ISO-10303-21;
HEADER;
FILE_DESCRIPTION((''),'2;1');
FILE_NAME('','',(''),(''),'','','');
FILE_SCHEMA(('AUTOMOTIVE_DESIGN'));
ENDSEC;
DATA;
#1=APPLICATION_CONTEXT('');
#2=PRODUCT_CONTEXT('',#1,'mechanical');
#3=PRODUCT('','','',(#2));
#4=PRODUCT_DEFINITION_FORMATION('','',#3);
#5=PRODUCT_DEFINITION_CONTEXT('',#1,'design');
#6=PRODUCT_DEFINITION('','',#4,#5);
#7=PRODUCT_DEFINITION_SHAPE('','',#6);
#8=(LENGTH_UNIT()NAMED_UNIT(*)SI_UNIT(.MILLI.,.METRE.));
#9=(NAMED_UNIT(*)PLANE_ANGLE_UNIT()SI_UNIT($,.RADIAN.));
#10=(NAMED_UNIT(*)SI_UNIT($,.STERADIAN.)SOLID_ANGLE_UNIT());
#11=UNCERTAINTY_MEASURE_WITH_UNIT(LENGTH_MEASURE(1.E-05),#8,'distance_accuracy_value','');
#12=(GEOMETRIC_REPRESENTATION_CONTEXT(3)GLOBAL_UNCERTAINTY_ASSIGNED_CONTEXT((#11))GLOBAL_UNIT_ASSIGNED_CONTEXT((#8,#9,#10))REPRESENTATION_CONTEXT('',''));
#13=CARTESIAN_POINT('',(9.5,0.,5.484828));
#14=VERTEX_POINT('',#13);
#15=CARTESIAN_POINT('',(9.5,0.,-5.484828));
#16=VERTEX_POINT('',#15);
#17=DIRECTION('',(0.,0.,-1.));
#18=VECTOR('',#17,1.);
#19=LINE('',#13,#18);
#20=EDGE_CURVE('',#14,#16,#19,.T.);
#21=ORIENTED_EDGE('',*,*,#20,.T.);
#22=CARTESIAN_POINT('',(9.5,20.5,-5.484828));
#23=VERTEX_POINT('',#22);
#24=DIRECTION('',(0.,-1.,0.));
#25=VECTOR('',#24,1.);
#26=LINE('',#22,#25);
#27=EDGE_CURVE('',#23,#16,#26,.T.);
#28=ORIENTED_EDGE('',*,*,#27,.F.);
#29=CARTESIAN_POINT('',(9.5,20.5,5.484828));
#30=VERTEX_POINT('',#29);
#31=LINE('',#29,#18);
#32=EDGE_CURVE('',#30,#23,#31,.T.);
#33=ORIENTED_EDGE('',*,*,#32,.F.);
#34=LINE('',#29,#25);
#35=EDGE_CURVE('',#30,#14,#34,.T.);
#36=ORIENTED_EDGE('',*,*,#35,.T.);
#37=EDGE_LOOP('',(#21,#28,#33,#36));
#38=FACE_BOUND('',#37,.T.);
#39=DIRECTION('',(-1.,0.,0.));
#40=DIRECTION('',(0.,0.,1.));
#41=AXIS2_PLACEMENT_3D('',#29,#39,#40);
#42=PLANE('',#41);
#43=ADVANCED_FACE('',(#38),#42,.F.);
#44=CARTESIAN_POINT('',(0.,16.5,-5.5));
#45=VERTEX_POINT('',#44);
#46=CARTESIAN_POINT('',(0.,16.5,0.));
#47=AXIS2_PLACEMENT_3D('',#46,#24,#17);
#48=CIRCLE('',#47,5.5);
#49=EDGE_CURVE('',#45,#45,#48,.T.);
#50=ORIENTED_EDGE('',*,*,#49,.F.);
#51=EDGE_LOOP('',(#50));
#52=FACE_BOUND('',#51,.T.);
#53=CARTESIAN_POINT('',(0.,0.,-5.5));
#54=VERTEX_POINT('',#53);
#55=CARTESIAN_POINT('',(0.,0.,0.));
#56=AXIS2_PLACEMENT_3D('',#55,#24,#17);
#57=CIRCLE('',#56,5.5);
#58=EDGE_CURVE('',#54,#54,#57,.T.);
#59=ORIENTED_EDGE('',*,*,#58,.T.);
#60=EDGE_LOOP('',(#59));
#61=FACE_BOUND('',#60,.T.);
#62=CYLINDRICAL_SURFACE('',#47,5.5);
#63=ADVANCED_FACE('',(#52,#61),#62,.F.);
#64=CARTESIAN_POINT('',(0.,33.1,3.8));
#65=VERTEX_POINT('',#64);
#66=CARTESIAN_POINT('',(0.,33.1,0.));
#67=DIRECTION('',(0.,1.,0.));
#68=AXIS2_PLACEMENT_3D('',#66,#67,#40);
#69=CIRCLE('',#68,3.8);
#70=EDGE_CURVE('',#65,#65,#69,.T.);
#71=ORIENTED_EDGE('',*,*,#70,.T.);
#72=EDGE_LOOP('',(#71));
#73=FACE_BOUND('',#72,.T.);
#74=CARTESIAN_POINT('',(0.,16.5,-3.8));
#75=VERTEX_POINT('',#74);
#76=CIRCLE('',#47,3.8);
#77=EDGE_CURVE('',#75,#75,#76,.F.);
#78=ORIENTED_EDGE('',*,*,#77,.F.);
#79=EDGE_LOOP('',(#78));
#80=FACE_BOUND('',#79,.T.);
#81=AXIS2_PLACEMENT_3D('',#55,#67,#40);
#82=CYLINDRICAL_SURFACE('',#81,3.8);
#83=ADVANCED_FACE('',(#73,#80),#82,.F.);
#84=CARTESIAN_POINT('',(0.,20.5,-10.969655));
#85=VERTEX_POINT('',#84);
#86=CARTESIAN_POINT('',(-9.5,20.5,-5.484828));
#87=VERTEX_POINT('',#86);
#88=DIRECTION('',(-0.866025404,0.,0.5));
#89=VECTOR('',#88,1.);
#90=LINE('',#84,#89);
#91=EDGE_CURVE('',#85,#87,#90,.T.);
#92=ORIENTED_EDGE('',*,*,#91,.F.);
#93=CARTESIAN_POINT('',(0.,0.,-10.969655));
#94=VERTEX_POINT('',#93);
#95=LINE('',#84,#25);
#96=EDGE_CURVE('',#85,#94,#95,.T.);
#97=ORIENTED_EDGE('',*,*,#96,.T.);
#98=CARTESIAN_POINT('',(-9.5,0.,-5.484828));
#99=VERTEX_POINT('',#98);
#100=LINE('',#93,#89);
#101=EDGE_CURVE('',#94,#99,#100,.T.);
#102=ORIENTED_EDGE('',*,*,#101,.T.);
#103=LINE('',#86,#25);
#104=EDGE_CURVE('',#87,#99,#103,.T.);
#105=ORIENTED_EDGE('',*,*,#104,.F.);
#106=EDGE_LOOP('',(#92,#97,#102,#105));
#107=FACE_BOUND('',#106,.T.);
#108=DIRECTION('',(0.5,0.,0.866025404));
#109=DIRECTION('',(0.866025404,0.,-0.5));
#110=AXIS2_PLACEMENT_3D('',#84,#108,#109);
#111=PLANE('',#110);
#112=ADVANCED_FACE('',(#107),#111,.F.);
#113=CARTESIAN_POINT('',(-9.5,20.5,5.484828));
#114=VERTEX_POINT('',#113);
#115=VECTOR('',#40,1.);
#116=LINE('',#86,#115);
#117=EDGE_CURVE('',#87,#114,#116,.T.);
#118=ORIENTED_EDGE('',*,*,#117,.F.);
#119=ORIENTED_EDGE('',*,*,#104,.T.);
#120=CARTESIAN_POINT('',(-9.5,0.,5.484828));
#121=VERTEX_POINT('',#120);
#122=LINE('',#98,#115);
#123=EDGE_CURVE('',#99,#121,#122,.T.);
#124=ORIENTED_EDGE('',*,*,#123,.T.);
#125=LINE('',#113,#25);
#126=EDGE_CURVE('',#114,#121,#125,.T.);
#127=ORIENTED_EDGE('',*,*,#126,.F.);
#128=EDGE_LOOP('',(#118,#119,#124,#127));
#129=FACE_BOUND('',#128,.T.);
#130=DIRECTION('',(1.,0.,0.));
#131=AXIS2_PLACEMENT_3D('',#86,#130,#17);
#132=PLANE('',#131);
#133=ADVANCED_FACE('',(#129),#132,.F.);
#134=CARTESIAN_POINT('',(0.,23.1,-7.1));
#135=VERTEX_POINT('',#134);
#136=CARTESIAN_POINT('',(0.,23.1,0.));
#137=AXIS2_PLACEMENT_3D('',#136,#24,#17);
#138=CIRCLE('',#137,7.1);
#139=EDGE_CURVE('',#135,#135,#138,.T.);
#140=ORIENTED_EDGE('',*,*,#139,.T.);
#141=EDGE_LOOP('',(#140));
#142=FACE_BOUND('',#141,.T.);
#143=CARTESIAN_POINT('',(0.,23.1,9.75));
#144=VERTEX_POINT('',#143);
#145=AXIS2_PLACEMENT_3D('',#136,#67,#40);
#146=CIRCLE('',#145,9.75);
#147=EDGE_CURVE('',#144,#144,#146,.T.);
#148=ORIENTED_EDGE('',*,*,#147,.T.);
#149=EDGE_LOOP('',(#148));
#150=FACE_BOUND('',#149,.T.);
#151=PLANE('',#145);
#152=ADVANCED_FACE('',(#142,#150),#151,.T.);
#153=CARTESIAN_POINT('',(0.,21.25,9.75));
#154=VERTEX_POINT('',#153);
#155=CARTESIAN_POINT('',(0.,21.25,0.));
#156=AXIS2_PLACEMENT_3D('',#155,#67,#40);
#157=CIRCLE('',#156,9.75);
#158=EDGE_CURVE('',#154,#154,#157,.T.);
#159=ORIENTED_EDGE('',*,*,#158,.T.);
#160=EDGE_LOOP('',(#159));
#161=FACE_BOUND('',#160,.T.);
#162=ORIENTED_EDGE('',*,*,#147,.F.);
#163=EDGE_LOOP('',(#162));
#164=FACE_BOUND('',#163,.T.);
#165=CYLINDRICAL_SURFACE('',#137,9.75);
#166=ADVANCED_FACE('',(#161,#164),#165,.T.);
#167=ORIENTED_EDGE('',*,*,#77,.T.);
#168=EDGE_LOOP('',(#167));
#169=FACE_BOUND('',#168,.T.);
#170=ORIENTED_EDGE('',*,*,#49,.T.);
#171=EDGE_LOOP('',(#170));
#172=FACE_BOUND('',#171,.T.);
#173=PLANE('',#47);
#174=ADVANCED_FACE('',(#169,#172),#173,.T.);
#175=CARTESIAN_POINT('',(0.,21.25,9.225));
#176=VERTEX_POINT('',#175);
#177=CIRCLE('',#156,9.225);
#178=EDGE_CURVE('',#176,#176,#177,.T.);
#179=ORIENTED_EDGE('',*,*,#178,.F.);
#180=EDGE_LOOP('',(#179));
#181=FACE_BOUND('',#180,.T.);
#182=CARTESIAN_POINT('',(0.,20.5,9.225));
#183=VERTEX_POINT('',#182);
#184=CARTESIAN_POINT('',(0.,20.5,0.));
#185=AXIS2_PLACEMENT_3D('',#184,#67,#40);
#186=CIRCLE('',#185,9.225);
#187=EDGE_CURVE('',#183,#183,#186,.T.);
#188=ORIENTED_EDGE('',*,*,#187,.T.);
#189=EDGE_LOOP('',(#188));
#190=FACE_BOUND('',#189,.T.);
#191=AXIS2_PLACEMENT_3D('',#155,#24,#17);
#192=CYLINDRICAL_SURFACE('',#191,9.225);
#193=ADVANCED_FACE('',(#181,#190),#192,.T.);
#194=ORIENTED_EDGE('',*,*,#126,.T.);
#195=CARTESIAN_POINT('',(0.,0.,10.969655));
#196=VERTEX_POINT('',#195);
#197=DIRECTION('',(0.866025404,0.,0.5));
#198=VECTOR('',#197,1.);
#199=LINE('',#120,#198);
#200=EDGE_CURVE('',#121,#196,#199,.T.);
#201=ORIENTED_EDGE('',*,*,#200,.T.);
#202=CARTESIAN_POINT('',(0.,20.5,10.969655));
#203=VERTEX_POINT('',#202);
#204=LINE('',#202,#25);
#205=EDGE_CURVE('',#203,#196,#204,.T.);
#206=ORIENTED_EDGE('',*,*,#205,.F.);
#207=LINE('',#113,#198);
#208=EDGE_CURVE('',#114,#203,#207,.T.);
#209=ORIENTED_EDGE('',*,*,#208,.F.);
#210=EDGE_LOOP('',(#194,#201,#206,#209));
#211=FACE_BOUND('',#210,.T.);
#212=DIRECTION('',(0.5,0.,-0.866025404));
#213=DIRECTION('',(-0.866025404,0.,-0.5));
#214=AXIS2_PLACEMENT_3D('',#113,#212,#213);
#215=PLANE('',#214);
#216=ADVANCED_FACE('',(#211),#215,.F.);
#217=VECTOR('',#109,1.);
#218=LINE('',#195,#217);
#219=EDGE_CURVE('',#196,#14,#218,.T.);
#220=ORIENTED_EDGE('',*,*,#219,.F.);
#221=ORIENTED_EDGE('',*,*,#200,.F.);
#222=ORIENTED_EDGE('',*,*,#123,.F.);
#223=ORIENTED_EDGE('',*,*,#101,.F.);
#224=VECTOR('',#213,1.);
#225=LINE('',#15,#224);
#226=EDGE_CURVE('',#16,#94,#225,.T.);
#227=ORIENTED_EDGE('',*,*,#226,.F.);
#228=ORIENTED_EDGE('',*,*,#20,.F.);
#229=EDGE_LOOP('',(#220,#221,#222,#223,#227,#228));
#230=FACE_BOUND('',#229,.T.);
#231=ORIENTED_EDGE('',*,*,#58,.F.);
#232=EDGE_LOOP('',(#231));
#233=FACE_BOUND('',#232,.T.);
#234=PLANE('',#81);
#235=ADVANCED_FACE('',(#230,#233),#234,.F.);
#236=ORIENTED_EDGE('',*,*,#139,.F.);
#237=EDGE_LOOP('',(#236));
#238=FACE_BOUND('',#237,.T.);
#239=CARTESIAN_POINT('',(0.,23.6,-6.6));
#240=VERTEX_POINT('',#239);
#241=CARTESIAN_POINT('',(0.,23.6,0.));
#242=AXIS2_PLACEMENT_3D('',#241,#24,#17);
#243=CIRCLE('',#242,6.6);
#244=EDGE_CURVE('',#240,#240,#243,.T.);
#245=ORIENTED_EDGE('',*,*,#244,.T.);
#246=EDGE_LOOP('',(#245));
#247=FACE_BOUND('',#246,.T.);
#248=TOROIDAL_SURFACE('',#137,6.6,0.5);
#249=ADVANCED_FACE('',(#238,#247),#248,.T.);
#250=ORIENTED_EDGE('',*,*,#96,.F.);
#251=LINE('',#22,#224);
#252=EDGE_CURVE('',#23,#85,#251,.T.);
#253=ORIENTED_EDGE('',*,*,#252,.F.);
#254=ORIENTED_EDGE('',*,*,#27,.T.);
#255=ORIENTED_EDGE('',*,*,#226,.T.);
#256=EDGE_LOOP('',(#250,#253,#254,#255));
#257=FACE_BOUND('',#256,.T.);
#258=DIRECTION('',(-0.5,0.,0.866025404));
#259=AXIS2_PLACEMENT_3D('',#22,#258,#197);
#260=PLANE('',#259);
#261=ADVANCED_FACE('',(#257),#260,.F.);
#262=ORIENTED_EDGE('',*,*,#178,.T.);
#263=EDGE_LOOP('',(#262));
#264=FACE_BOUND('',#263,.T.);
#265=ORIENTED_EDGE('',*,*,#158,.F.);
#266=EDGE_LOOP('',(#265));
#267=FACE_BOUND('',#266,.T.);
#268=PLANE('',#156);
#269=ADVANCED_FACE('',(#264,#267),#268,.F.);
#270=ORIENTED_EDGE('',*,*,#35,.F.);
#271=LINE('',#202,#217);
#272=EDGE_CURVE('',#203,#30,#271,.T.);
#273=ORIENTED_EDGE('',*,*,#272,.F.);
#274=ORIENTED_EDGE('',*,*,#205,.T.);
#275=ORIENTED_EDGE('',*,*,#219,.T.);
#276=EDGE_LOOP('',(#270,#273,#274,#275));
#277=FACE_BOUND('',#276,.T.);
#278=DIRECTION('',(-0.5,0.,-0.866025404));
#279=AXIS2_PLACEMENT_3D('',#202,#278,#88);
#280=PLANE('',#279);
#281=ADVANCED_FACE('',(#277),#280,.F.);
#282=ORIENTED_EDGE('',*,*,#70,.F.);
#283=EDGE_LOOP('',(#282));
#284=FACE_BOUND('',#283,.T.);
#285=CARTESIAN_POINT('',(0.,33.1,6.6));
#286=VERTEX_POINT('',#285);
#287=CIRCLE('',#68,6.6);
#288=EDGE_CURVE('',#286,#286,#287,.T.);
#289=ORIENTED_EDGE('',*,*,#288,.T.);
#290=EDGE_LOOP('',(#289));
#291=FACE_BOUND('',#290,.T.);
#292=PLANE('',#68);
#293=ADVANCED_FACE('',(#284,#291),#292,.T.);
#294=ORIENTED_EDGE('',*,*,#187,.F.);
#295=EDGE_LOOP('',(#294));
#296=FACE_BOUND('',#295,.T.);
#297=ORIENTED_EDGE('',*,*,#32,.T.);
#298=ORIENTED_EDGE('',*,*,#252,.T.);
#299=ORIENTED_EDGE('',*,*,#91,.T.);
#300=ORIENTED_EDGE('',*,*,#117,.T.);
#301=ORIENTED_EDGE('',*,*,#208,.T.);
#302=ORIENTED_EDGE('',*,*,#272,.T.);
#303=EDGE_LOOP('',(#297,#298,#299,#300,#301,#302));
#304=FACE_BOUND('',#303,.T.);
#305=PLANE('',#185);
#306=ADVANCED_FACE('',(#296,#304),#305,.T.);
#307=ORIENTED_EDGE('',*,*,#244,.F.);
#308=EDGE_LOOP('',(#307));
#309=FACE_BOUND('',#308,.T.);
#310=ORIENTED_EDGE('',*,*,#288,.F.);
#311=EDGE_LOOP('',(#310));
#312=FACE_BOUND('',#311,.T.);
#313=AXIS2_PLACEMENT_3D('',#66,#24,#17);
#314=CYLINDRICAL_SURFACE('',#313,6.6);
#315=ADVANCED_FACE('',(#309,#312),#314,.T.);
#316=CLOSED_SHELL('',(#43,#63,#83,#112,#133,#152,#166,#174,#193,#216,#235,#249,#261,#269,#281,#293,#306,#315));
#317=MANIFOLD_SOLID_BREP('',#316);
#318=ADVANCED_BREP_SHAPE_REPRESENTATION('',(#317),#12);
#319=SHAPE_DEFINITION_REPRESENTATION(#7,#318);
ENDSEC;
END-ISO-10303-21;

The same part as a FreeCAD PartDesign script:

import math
import FreeCAD as App
import Part
import Sketcher

V = App.Vector
Q = App.Units.Quantity


def add_polygon(sketch, points):
    """Adds a closed chain of lines whose ends are joined by coincident constraints."""
    first, n = sketch.GeometryCount, len(points)
    for a, b in zip(points, points[1:] + points[:1]):
        sketch.addGeometry(Part.LineSegment(App.Vector(*a, 0), App.Vector(*b, 0)), False)
    for i in range(n):
        sketch.addConstraint(Sketcher.Constraint("Coincident", first + i, 2, first + (i + 1) % n, 1))

doc = App.newDocument("Part")
body = doc.addObject("PartDesign::Body", "Body")

sketch1 = doc.addObject("Sketcher::SketchObject", "Sketch")
body.addObject(sketch1)
sketch1.AttachmentSupport = (doc.XZ_Plane, [""])
sketch1.MapMode = "FlatFace"
add_polygon(sketch1, [(-9.5, -5.484828), (-9.5, 5.484828), (0, 10.969655), (9.5, 5.484828), (9.5, -5.484828), (0, -10.969655)])
sketch1.addConstraint([
    Sketcher.Constraint("Vertical", 0),
    Sketcher.Constraint("Vertical", 3),
    Sketcher.Constraint("Symmetric", 0, 2, 3, 2, -1, 1),
    Sketcher.Constraint("Symmetric", 1, 2, 4, 2, -1, 1),
    Sketcher.Constraint("PointOnObject", 1, 2, -2),
    Sketcher.Constraint("Parallel", 2, 5),
    Sketcher.Constraint("Horizontal", 0, 2, 2, 2),
    Sketcher.Constraint("Angle", 1, Q("30 deg")),
    Sketcher.Constraint("DistanceX", 0, 2, 2, 2, 19.0),
    Sketcher.Constraint("DistanceY", 0, 1, 0, 2, 10.969655),
])
pad1 = doc.addObject("PartDesign::Pad", "Pad")
body.addObject(pad1)
pad1.Profile = sketch1
pad1.Length = 20.5
pad1.Reversed = True

sketch2 = doc.addObject("Sketcher::SketchObject", "Sketch001")
body.addObject(sketch2)
sketch2.AttachmentSupport = (doc.XZ_Plane, [""])
sketch2.MapMode = "FlatFace"
sketch2.AttachmentOffset = App.Placement(V(0, 0, -20.5), App.Rotation())
sketch2.addGeometry(Part.Circle(V(0, 0, 0), V(0, 0, 1), 9.225), False)
sketch2.addConstraint([
    Sketcher.Constraint("Coincident", 0, 3, -1, 1),
    Sketcher.Constraint("Diameter", 0, 18.45),
])
pad2 = doc.addObject("PartDesign::Pad", "Pad001")
body.addObject(pad2)
pad2.Profile = sketch2
pad2.Length = 0.75
pad2.Reversed = True

sketch3 = doc.addObject("Sketcher::SketchObject", "Sketch002")
body.addObject(sketch3)
sketch3.AttachmentSupport = (doc.XZ_Plane, [""])
sketch3.MapMode = "FlatFace"
sketch3.AttachmentOffset = App.Placement(V(0, 0, -21.25), App.Rotation())
sketch3.addGeometry(Part.Circle(V(0, 0, 0), V(0, 0, 1), 9.75), False)
sketch3.addConstraint([
    Sketcher.Constraint("Coincident", 0, 3, -1, 1),
    Sketcher.Constraint("Diameter", 0, 19.5),
])
pad3 = doc.addObject("PartDesign::Pad", "Pad002")
body.addObject(pad3)
pad3.Profile = sketch3
pad3.Length = 1.85
pad3.Reversed = True

sketch4 = doc.addObject("Sketcher::SketchObject", "Sketch003")
body.addObject(sketch4)
sketch4.AttachmentSupport = (doc.XZ_Plane, [""])
sketch4.MapMode = "FlatFace"
sketch4.AttachmentOffset = App.Placement(V(0, 0, -23.1), App.Rotation())
sketch4.addGeometry(Part.Circle(V(0, 0, 0), V(0, 0, 1), 6.6), False)
sketch4.addConstraint([
    Sketcher.Constraint("Coincident", 0, 3, -1, 1),
    Sketcher.Constraint("Diameter", 0, 13.2),
])
pad4 = doc.addObject("PartDesign::Pad", "Pad003")
body.addObject(pad4)
pad4.Profile = sketch4
pad4.Length = 10
pad4.Reversed = True

sketch5 = doc.addObject("Sketcher::SketchObject", "Sketch004")
body.addObject(sketch5)
sketch5.AttachmentSupport = (doc.XZ_Plane, [""])
sketch5.MapMode = "FlatFace"
sketch5.AttachmentOffset = App.Placement(V(0, 0, -33.1), App.Rotation())
sketch5.addGeometry(Part.Circle(V(0, 0, 0), V(0, 0, 1), 3.8), False)
sketch5.addConstraint([
    Sketcher.Constraint("Coincident", 0, 3, -1, 1),
    Sketcher.Constraint("Diameter", 0, 7.6),
])
pocket1 = doc.addObject("PartDesign::Pocket", "Pocket")
body.addObject(pocket1)
pocket1.Profile = sketch5
pocket1.Type = "ThroughAll"
pocket1.Reversed = True

sketch6 = doc.addObject("Sketcher::SketchObject", "Sketch005")
body.addObject(sketch6)
sketch6.AttachmentSupport = (doc.XZ_Plane, [""])
sketch6.MapMode = "FlatFace"
sketch6.addGeometry(Part.Circle(V(0, 0, 0), V(0, 0, 1), 5.5), False)
sketch6.addConstraint([
    Sketcher.Constraint("Coincident", 0, 3, -1, 1),
    Sketcher.Constraint("Diameter", 0, 11.0),
])
pocket2 = doc.addObject("PartDesign::Pocket", "Pocket001")
body.addObject(pocket2)
pocket2.Profile = sketch6
pocket2.Length = 16.5

sketch7 = doc.addObject("Sketcher::SketchObject", "Sketch006")
body.addObject(sketch7)
sketch7.AttachmentSupport = (doc.XY_Plane, [""])
sketch7.MapMode = "FlatFace"
sketch7.addGeometry([
    Part.LineSegment(V(-6.6, 23.1, 0), V(-6.6, 23.6, 0)),
    Part.ArcOfCircle(Part.Circle(V(-6.6, 23.1, 0), V(0, 0, 1), 0.5), math.radians(90), math.radians(180)),
    Part.LineSegment(V(-7.1, 23.1, 0), V(-6.6, 23.1, 0)),
], False)
sketch7.addConstraint([
    Sketcher.Constraint("Coincident", 0, 2, 1, 1),
    Sketcher.Constraint("Coincident", 1, 2, 2, 1),
    Sketcher.Constraint("Coincident", 2, 2, 0, 1),
    Sketcher.Constraint("Vertical", 0),
    Sketcher.Constraint("Horizontal", 2),
    Sketcher.Constraint("Coincident", 2, 2, 1, 3),
    Sketcher.Constraint("Radius", 1, 0.5),
    Sketcher.Constraint("DistanceX", 1, 3, -1, 1, 6.6),
    Sketcher.Constraint("DistanceY", -1, 1, 1, 3, 23.1),
])
revolution = doc.addObject("PartDesign::Revolution", "Revolution")
body.addObject(revolution)
revolution.Profile = sketch7
revolution.ReferenceAxis = (sketch7, ["V_Axis"])
revolution.Angle = 360

doc.recompute()
